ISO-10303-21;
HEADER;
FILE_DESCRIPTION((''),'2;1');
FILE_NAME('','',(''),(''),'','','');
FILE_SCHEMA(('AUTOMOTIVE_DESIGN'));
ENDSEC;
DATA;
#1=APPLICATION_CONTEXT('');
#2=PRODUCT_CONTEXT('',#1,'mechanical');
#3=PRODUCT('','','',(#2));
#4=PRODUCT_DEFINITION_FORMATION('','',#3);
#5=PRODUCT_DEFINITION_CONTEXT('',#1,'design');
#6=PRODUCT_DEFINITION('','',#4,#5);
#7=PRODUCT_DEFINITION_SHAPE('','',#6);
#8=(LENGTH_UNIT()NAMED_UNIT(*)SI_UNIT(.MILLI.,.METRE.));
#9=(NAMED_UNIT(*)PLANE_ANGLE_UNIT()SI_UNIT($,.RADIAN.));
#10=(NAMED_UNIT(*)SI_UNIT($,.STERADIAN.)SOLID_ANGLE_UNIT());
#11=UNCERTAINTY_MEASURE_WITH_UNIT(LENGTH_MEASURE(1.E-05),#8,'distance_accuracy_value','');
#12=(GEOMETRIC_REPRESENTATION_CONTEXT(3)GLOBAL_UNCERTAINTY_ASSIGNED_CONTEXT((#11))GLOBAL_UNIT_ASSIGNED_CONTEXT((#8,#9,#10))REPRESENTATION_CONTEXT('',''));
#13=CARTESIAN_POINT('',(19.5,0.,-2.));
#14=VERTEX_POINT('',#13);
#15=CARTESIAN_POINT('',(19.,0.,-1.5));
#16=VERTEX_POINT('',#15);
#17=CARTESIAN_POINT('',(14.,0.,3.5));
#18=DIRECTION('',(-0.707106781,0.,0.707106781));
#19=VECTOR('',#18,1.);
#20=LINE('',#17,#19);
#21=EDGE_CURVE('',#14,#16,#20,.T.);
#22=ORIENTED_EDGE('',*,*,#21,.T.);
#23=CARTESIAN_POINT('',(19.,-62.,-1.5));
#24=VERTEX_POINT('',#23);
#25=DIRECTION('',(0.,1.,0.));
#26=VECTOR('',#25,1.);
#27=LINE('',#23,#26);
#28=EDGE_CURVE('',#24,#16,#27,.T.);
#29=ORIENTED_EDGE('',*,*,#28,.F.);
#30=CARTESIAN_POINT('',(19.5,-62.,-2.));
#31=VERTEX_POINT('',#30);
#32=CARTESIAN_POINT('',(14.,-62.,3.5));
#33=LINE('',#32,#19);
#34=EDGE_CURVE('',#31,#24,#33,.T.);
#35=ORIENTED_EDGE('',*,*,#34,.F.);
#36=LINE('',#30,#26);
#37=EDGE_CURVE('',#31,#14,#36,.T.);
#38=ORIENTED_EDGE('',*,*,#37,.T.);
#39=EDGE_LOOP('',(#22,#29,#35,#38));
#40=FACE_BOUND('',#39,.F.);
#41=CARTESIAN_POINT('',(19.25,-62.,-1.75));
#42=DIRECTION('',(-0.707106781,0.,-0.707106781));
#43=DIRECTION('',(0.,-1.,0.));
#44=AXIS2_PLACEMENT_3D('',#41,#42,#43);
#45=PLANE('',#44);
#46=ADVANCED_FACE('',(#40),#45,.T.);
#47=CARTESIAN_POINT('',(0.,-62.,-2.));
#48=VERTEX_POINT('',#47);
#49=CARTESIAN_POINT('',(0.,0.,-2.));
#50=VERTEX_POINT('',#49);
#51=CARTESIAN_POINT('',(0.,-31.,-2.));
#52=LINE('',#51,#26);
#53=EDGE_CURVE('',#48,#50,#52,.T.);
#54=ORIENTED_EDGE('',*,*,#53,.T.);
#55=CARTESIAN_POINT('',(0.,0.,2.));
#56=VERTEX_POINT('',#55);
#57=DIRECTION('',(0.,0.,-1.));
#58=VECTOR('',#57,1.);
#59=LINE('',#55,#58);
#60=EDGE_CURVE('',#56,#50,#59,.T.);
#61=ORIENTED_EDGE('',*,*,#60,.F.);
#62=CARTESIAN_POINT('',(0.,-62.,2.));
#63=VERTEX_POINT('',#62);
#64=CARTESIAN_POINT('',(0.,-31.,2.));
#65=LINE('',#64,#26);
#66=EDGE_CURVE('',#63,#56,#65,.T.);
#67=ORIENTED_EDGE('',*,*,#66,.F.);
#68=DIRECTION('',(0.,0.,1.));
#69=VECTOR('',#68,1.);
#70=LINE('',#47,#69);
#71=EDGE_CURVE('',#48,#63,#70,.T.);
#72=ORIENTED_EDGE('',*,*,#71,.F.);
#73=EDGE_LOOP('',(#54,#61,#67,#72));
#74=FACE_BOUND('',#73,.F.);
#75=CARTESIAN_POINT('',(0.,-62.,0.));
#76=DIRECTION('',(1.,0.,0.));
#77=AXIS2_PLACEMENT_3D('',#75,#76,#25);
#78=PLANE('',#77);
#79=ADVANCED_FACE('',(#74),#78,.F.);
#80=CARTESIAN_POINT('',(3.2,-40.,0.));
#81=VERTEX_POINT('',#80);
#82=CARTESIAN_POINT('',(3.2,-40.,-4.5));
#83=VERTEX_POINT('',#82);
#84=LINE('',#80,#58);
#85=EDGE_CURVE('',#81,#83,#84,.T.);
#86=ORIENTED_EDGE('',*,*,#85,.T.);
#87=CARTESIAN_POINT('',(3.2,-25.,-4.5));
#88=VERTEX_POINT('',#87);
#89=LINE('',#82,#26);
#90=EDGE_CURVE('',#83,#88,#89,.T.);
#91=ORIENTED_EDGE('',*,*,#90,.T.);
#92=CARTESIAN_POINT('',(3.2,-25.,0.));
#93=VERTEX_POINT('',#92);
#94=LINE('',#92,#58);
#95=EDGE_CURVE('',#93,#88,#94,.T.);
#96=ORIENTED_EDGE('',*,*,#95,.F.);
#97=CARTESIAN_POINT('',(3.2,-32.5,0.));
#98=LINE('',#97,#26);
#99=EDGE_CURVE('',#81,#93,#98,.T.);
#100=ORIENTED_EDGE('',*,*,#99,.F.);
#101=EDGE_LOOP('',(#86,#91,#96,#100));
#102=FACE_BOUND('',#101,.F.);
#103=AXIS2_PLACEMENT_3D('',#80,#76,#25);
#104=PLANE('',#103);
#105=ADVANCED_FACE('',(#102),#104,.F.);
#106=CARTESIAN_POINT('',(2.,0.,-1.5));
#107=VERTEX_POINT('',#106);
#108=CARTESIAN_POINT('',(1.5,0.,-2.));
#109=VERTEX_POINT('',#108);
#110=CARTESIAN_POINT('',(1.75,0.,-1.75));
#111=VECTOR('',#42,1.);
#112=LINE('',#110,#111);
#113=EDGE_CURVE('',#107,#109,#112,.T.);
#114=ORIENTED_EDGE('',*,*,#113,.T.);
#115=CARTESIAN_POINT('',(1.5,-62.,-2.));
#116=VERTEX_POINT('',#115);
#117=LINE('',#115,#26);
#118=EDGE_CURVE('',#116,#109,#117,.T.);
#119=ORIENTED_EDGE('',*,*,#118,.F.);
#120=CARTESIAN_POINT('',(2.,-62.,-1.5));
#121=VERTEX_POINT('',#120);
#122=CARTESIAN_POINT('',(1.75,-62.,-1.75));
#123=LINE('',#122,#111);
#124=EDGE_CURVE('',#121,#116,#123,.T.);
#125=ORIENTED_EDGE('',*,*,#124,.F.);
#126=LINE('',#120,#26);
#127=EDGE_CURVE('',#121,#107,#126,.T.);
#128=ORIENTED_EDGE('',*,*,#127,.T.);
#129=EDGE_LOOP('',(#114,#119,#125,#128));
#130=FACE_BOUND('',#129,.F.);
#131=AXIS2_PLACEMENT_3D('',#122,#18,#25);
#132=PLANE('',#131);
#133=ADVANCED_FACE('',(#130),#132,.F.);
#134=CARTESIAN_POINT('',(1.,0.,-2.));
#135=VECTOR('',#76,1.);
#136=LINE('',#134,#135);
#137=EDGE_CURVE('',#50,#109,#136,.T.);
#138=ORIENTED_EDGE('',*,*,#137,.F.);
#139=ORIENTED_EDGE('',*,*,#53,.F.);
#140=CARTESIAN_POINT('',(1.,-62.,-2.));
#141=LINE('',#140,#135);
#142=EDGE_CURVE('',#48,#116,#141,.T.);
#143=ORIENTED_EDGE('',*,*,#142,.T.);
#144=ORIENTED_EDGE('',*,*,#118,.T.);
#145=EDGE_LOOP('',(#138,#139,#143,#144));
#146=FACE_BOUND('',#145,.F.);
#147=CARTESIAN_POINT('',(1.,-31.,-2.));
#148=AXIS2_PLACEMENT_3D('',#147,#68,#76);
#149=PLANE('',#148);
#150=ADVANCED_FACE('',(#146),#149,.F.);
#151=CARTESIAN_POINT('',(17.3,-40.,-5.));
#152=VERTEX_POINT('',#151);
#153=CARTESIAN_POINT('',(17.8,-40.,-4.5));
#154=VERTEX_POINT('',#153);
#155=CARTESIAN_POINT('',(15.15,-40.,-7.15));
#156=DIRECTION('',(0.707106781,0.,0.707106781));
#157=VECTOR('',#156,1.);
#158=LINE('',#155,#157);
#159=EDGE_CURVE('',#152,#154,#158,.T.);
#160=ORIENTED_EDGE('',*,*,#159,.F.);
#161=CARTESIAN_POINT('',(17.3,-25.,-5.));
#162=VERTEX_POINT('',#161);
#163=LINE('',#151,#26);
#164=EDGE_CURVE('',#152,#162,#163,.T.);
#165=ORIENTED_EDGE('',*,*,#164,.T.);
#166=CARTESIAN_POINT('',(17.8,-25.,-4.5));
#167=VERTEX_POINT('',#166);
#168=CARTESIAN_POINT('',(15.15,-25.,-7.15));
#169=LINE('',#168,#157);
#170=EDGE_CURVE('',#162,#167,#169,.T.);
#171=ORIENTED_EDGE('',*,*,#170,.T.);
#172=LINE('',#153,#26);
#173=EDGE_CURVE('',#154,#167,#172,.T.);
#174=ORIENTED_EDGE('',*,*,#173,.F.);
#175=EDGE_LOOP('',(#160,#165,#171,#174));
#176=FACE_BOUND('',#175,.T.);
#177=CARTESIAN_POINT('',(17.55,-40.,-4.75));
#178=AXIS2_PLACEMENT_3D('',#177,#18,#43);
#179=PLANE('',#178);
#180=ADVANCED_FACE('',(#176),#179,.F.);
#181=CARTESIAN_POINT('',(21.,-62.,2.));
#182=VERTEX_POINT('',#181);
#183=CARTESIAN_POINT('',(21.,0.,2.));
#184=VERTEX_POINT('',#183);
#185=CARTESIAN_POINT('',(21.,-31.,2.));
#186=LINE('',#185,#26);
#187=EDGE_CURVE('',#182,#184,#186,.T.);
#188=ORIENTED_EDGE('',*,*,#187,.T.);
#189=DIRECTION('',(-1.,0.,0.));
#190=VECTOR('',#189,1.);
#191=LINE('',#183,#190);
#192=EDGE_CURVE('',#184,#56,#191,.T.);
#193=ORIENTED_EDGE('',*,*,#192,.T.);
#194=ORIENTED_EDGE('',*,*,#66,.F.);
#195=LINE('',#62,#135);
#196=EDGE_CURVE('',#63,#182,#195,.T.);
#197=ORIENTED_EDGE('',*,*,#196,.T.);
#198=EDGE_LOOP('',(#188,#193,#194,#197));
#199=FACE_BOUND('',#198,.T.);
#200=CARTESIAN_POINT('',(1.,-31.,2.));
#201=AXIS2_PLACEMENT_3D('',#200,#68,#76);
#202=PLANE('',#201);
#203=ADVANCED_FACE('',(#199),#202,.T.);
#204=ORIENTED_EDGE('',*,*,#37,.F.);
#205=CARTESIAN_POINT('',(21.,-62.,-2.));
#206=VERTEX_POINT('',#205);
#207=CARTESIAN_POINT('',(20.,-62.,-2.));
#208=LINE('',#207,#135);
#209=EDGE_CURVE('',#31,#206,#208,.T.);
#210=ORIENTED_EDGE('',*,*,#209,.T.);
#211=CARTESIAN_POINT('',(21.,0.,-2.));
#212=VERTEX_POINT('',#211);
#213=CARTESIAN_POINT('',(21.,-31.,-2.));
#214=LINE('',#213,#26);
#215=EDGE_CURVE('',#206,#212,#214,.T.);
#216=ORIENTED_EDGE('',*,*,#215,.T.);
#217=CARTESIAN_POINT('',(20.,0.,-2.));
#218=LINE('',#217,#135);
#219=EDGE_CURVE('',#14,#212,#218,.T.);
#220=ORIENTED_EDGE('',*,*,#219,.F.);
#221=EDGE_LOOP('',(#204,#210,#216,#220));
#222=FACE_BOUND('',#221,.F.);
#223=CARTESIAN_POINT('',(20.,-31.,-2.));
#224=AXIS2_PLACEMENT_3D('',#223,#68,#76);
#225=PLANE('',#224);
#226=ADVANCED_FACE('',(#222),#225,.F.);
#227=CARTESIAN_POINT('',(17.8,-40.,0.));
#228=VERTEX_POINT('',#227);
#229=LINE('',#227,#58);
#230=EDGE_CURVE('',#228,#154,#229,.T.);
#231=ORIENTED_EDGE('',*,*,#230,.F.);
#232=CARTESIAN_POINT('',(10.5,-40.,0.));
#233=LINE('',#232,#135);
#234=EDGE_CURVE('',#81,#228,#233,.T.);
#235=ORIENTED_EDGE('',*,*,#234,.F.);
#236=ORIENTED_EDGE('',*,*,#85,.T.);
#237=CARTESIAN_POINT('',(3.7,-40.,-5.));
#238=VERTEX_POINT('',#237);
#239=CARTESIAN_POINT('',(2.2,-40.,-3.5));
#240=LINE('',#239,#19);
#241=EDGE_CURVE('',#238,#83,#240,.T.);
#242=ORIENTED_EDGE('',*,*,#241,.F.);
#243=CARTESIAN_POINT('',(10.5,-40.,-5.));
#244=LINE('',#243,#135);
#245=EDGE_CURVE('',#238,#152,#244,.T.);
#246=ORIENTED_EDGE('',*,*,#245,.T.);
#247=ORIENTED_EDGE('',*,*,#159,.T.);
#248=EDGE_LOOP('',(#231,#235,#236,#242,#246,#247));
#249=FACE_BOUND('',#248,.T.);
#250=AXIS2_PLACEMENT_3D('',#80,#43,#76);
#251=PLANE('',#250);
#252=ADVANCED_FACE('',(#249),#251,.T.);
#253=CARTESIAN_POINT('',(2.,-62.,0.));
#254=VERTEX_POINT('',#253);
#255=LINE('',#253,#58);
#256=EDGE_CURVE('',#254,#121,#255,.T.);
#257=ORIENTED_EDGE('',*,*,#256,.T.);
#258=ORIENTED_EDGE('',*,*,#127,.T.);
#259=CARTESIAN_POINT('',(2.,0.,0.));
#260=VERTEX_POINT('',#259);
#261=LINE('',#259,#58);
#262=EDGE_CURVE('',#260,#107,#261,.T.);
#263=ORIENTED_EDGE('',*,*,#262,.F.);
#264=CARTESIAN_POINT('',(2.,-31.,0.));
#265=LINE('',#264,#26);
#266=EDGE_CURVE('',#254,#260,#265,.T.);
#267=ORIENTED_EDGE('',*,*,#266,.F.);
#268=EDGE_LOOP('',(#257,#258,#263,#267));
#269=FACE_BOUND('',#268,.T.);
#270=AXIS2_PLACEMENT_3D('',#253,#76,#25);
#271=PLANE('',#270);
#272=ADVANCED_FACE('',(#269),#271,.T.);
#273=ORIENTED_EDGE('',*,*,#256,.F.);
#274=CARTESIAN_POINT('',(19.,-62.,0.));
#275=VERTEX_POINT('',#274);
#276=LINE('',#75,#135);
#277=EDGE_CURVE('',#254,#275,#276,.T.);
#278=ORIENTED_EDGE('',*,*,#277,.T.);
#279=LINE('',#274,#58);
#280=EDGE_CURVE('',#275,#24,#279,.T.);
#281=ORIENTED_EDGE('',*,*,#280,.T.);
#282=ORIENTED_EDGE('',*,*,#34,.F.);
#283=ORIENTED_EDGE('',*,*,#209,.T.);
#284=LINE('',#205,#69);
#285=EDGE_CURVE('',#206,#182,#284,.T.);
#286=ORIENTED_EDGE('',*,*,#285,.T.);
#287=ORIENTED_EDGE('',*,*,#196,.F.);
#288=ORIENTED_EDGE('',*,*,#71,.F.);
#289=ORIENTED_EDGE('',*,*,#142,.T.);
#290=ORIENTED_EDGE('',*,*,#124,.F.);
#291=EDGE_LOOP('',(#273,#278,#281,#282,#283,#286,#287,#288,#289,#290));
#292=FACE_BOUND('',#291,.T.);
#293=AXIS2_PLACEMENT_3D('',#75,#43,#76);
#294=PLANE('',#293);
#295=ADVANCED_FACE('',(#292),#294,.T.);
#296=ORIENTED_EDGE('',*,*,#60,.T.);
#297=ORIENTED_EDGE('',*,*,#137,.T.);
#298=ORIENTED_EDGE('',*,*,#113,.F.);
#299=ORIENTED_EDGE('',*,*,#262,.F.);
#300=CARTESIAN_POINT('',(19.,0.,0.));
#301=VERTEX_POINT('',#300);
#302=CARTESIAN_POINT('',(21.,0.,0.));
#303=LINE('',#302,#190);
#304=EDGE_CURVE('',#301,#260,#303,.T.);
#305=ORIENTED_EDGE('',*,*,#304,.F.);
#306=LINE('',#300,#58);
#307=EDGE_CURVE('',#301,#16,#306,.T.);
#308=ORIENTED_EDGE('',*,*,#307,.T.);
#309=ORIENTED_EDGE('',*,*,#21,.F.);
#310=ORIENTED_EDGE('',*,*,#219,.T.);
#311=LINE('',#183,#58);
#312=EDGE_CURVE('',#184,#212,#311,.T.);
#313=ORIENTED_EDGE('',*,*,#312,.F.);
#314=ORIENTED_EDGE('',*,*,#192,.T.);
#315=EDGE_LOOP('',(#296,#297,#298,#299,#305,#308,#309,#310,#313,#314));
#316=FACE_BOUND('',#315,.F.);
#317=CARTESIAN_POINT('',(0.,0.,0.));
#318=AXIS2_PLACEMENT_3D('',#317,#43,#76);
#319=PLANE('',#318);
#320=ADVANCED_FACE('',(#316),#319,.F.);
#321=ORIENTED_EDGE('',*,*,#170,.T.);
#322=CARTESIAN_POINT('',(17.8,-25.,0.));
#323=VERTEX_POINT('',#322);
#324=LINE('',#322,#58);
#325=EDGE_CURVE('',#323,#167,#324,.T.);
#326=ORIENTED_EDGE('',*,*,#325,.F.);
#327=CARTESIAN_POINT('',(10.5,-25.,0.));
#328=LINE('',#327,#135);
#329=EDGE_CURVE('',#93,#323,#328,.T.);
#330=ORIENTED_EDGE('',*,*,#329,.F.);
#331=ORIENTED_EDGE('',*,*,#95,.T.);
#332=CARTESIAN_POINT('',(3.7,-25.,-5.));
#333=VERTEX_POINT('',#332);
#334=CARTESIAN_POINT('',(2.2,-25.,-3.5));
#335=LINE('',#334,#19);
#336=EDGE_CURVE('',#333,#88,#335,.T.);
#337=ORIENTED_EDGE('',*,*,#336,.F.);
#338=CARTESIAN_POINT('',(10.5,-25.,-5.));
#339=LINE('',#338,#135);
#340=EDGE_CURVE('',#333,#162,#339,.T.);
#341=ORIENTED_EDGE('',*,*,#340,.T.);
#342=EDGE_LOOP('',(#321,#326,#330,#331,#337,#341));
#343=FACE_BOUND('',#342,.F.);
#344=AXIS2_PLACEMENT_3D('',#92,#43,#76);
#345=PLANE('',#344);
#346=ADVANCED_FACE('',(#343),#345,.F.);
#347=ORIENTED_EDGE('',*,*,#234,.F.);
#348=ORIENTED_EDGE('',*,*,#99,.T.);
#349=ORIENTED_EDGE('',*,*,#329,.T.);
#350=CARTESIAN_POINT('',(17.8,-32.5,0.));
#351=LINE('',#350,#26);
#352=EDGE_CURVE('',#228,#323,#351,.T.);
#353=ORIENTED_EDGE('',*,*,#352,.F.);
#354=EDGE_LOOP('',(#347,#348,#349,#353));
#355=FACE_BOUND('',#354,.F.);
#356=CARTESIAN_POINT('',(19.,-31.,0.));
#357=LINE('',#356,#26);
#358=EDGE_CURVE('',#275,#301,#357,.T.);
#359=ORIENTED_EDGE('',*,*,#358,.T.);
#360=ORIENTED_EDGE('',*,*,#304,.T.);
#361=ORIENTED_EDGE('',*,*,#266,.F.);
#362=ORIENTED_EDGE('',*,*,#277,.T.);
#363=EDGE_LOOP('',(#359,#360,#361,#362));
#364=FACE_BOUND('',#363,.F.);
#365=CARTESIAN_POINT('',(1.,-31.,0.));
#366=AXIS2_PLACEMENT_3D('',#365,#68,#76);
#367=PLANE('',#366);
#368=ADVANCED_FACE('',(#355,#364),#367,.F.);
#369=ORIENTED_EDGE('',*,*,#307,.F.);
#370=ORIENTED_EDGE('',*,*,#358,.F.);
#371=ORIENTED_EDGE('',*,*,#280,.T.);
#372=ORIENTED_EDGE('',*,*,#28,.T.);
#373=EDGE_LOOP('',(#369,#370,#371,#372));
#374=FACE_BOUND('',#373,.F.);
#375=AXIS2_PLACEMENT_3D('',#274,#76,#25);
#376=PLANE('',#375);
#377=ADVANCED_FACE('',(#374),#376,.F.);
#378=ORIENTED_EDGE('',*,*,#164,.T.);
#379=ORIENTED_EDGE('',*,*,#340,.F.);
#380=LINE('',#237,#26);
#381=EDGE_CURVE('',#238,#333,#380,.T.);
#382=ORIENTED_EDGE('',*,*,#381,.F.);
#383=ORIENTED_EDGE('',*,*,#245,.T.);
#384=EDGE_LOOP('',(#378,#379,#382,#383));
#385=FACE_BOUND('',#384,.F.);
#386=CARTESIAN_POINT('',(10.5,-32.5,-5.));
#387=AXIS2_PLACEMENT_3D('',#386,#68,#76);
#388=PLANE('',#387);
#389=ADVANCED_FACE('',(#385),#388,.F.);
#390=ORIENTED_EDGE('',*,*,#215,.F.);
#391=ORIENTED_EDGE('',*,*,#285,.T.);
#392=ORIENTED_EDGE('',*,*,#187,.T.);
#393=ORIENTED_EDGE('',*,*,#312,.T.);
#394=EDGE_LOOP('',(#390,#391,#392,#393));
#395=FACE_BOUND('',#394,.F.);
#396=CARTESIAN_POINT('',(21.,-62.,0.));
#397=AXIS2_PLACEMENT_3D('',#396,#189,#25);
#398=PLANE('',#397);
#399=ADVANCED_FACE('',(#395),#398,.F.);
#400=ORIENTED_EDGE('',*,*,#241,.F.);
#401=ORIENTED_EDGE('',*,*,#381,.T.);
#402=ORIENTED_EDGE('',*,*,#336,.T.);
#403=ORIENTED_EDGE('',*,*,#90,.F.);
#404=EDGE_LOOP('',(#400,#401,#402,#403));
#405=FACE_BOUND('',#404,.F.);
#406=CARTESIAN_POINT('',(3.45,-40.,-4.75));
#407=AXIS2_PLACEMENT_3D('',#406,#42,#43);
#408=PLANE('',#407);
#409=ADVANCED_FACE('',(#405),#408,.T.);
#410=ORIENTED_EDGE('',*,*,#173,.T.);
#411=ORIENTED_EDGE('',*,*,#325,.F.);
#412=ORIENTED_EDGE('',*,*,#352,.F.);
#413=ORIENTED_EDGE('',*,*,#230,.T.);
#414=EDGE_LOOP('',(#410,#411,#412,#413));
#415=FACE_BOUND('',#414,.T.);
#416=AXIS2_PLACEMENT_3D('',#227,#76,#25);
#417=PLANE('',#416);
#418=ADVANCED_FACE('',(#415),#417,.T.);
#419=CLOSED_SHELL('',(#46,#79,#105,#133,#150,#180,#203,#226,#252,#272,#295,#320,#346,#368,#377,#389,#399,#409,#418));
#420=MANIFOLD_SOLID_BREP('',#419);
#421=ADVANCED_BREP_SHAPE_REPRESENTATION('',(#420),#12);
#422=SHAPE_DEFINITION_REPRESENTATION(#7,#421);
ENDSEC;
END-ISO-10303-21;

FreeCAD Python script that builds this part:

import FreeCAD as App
import Part
import Sketcher


def edges_at(feature, points):
    """Names of the edges that pass closest to the given points."""
    edges = feature.Shape.Edges
    near = lambda p: min(range(len(edges)), key=lambda i: edges[i].distToShape(Part.Vertex(*p))[0])
    return sorted({f"Edge{near(p) + 1}" for p in points})


def add_polygon(sketch, points):
    """Adds a closed chain of lines whose ends are joined by coincident constraints."""
    first, n = sketch.GeometryCount, len(points)
    for a, b in zip(points, points[1:] + points[:1]):
        sketch.addGeometry(Part.LineSegment(App.Vector(*a, 0), App.Vector(*b, 0)), False)
    for i in range(n):
        sketch.addConstraint(Sketcher.Constraint("Coincident", first + i, 2, first + (i + 1) % n, 1))

doc = App.newDocument("Part")
body = doc.addObject("PartDesign::Body", "Body")

sketch1 = doc.addObject("Sketcher::SketchObject", "Sketch")
body.addObject(sketch1)
sketch1.AttachmentSupport = (doc.XY_Plane, [""])
sketch1.MapMode = "FlatFace"
add_polygon(sketch1, [(0, 0), (0, -62), (21, -62), (21, 0)])
sketch1.addConstraint([
    Sketcher.Constraint("Vertical", 0),
    Sketcher.Constraint("Horizontal", 1),
    Sketcher.Constraint("Vertical", 2),
    Sketcher.Constraint("Horizontal", 3),
    Sketcher.Constraint("Coincident", 3, 2, -1, 1),
    Sketcher.Constraint("DistanceX", 1, 1, 1, 2, 21.0),
    Sketcher.Constraint("DistanceY", 0, 2, 0, 1, 62.0),
])
pad1 = doc.addObject("PartDesign::Pad", "Pad")
body.addObject(pad1)
pad1.Profile = sketch1
pad1.Length = 2

sketch2 = doc.addObject("Sketcher::SketchObject", "Sketch001")
body.addObject(sketch2)
sketch2.AttachmentSupport = (doc.XY_Plane, [""])
sketch2.MapMode = "FlatFace"
add_polygon(sketch2, [(3, -25), (3, -40), (18, -40), (18, -25)])
sketch2.addConstraint([
    Sketcher.Constraint("Vertical", 0),
    Sketcher.Constraint("Horizontal", 1),
    Sketcher.Constraint("Vertical", 2),
    Sketcher.Constraint("Horizontal", 3),
    Sketcher.Constraint("DistanceY", 0, 2, 0, 1, 15.0),
    Sketcher.Constraint("DistanceX", 1, 1, 1, 2, 14.6),
    Sketcher.Constraint("DistanceY", 0, 2, -1, 1, 40.0),
    Sketcher.Constraint("DistanceX", -1, 1, 0, 2, 3.2),
])
pad2 = doc.addObject("PartDesign::Pad", "Pad001")
body.addObject(pad2)
pad2.Profile = sketch2
pad2.Length = 5
pad2.Reversed = True

sketch3 = doc.addObject("Sketcher::SketchObject", "Sketch002")
body.addObject(sketch3)
sketch3.AttachmentSupport = (doc.XY_Plane, [""])
sketch3.MapMode = "FlatFace"
add_polygon(sketch3, [(0, 0), (0, -62), (2, -62), (2, 0)])
add_polygon(sketch3, [(19, 0), (19, -62), (21, -62), (21, 0)])
sketch3.addConstraint([
    Sketcher.Constraint("Vertical", 0),
    Sketcher.Constraint("Horizontal", 1),
    Sketcher.Constraint("Vertical", 2),
    Sketcher.Constraint("Horizontal", 3),
    Sketcher.Constraint("Vertical", 4),
    Sketcher.Constraint("Horizontal", 5),
    Sketcher.Constraint("Vertical", 6),
    Sketcher.Constraint("Horizontal", 7),
    Sketcher.Constraint("Coincident", 3, 2, -1, 1),
    Sketcher.Constraint("PointOnObject", 6, 2, -1),
    Sketcher.Constraint("Horizontal", 1, 2, 4, 2),
    Sketcher.Constraint("Equal", 3, 5),
    Sketcher.Constraint("DistanceX", 1, 1, 1, 2, 2.0),
    Sketcher.Constraint("DistanceY", 0, 2, 0, 1, 62.0),
    Sketcher.Constraint("DistanceX", -1, 1, 4, 2, 19.0),
])
pad3 = doc.addObject("PartDesign::Pad", "Pad002")
body.addObject(pad3)
pad3.Profile = sketch3
pad3.Length = 2
pad3.Reversed = True
doc.recompute()

chamfer = doc.addObject("PartDesign::Chamfer", "Chamfer")
body.addObject(chamfer)
chamfer.Base = (pad3, edges_at(pad3, [
    (2, -31, -2),
    (19, -31, -2),
    (3.2, -32.5, -5),
    (17.8, -32.5, -5),
]))
chamfer.Size = 0.5

doc.recompute()
